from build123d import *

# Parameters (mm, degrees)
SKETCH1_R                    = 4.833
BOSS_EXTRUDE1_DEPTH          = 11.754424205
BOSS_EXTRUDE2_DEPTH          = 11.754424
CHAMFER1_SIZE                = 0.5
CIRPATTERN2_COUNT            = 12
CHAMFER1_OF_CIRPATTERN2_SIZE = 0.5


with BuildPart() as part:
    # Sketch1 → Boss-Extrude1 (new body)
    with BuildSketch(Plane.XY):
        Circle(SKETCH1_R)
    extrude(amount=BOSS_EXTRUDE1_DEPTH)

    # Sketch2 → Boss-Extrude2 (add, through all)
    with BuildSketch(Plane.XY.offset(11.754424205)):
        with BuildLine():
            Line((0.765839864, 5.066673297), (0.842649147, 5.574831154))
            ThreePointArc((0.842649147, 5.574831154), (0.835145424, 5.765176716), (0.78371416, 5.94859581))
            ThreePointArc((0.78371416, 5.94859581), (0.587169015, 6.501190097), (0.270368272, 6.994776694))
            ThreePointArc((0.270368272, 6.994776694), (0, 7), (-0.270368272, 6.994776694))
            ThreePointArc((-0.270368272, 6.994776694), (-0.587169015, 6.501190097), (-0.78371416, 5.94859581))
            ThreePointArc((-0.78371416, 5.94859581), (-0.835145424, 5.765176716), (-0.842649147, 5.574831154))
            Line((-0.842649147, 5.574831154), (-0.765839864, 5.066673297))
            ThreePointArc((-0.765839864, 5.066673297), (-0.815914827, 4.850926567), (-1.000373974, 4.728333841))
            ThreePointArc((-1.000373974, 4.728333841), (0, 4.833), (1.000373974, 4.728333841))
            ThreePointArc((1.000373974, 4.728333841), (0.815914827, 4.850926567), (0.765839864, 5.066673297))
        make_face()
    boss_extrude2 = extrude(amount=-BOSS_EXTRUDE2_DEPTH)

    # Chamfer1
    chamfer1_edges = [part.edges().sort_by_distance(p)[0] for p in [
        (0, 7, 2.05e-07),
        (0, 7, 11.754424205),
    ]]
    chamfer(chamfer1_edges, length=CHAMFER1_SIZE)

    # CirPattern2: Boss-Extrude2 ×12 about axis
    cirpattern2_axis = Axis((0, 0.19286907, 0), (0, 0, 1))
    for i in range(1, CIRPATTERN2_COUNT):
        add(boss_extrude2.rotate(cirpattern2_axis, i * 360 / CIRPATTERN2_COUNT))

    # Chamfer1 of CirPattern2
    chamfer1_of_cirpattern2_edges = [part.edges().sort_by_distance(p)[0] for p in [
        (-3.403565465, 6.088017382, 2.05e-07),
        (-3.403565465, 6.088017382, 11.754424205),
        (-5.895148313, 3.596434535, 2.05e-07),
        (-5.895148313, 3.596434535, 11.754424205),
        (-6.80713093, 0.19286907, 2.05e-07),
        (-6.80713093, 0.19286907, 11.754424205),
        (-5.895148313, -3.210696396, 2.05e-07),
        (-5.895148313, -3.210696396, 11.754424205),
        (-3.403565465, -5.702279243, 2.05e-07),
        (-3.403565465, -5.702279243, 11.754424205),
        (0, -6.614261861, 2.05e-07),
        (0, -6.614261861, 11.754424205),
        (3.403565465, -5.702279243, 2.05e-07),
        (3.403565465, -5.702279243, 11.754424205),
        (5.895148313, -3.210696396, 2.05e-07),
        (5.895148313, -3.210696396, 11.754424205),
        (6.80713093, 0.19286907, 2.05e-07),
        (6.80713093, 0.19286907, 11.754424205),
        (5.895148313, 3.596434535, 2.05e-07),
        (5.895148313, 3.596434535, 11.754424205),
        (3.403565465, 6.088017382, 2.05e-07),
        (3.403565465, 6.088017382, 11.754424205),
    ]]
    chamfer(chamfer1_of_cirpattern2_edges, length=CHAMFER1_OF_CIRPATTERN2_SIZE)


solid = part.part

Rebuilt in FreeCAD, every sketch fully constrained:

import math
import FreeCAD as App
import Part
import Sketcher


def edges_at(feature, points):
    """Names of the edges that pass closest to the given points."""
    edges = feature.Shape.Edges
    near = lambda p: min(range(len(edges)), key=lambda i: edges[i].distToShape(Part.Vertex(*p))[0])
    return sorted({f"Edge{near(p) + 1}" for p in points})

doc = App.newDocument("Part")
body = doc.addObject("PartDesign::Body", "Body")

sketch1 = body.newObject("Sketcher::SketchObject", "Sketch")
sketch1.AttachmentSupport = (doc.getObject("XY_Plane"), [""])
sketch1.MapMode = "FlatFace"
sketch1.addGeometry(Part.Circle(App.Vector(0, 0, 0), App.Vector(0, 0, 1), 4.8), False)
sketch1.addConstraint(Sketcher.Constraint("Coincident", 0, 3, -1, 1))
sketch1.addConstraint(Sketcher.Constraint("Diameter", 0, 9.666))
pad1 = body.newObject("PartDesign::Pad", "Pad")
pad1.Profile = sketch1
pad1.Length = 11.754424

sketch2 = body.newObject("Sketcher::SketchObject", "Sketch001")
sketch2.AttachmentSupport = (doc.getObject("XY_Plane"), [""])
sketch2.MapMode = "FlatFace"
sketch2.AttachmentOffset = App.Placement(App.Vector(0, 0, 11.754424), App.Rotation())
sketch2.addGeometry(Part.LineSegment(App.Vector(0.77, 5.07, 0), App.Vector(0.84, 5.57, 0)), False)
sketch2.addGeometry(Part.ArcOfCircle(Part.Circle(App.Vector(0.03, 5.64, 0), App.Vector(0, 0, 1), 0.82), math.radians(-4), math.radians(22)), False)
sketch2.addGeometry(Part.ArcOfCircle(Part.Circle(App.Vector(-1.72, 5.37, 0), App.Vector(0, 0, 1), 2.57), math.radians(13), math.radians(39)), False)
sketch2.addGeometry(Part.ArcOfCircle(Part.Circle(App.Vector(0, 0, 0), App.Vector(0, 0, 1), 7), math.radians(87.79), math.radians(92.21)), False)
sketch2.addGeometry(Part.ArcOfCircle(Part.Circle(App.Vector(1.72, 5.37, 0), App.Vector(0, 0, 1), 2.57), math.radians(141), math.radians(167)), False)
sketch2.addGeometry(Part.ArcOfCircle(Part.Circle(App.Vector(-0.03, 5.64, 0), App.Vector(0, 0, 1), 0.82), math.radians(158), math.radians(184)), False)
sketch2.addGeometry(Part.LineSegment(App.Vector(-0.84, 5.57, 0), App.Vector(-0.77, 5.07, 0)), False)
sketch2.addGeometry(Part.ArcOfCircle(Part.Circle(App.Vector(-1.06, 5.02, 0), App.Vector(0, 0, 1), 0.3), math.radians(-78), math.radians(9)), False)
sketch2.addGeometry(Part.ArcOfCircle(Part.Circle(App.Vector(0, 0, 0), App.Vector(0, 0, 1), 4.83), math.radians(78), math.radians(102)), False)
sketch2.addGeometry(Part.ArcOfCircle(Part.Circle(App.Vector(1.06, 5.02, 0), App.Vector(0, 0, 1), 0.3), math.radians(171), math.radians(258)), False)
sketch2.addConstraint(Sketcher.Constraint("Coincident", 0, 2, 1, 1))
sketch2.addConstraint(Sketcher.Constraint("Coincident", 1, 2, 2, 1))
sketch2.addConstraint(Sketcher.Constraint("Coincident", 2, 2, 3, 1))
sketch2.addConstraint(Sketcher.Constraint("Coincident", 3, 2, 4, 1))
sketch2.addConstraint(Sketcher.Constraint("Coincident", 4, 2, 5, 1))
sketch2.addConstraint(Sketcher.Constraint("Coincident", 5, 2, 6, 1))
sketch2.addConstraint(Sketcher.Constraint("Tangent", 6, 2, 7, 2))
sketch2.addConstraint(Sketcher.Constraint("Tangent", 7, 1, 8, 2))
sketch2.addConstraint(Sketcher.Constraint("Tangent", 8, 1, 9, 2))
sketch2.addConstraint(Sketcher.Constraint("Tangent", 9, 1, 0, 1))
sketch2.addConstraint(Sketcher.Constraint("Coincident", 3, 3, -1, 1))
sketch2.addConstraint(Sketcher.Constraint("Coincident", 8, 3, -1, 1))
sketch2.addConstraint(Sketcher.Constraint("Equal", 2, 4))
sketch2.addConstraint(Sketcher.Constraint("Equal", 1, 5))
sketch2.addConstraint(Sketcher.Constraint("Equal", 7, 9))
sketch2.addConstraint(Sketcher.Constraint("Symmetric", 2, 3, 4, 3, -2))
sketch2.addConstraint(Sketcher.Constraint("Symmetric", 1, 3, 5, 3, -2))
sketch2.addConstraint(Sketcher.Constraint("Symmetric", 6, 2, 9, 1, -2))
sketch2.addConstraint(Sketcher.Constraint("Radius", 3, 7.0))
sketch2.addConstraint(Sketcher.Constraint("Radius", 7, 0.3))
sketch2.addConstraint(Sketcher.Constraint("Radius", 1, 0.816))
sketch2.addConstraint(Sketcher.Constraint("Radius", 2, 2.568))
sketch2.addConstraint(Sketcher.Constraint("Radius", 8, 4.833))
sketch2.addConstraint(Sketcher.Constraint("Distance", 0, 0.51393))
sketch2.addConstraint(Sketcher.Constraint("DistanceY", -1, 1, 1, 3, 5.638081))
sketch2.addConstraint(Sketcher.Constraint("DistanceX", 7, 3, -1, 1, 1.06247))
sketch2.addConstraint(Sketcher.Constraint("DistanceX", -1, 1, 0, 2, 0.842649))
sketch2.addConstraint(Sketcher.Constraint("DistanceX", -1, 1, 2, 2, 0.270368))
sketch2.addConstraint(Sketcher.Constraint("DistanceX", 2, 3, 1, 3, 1.747349))
pad2 = body.newObject("PartDesign::Pad", "Pad001")
pad2.Profile = sketch2
pad2.Length = 11.754424
pad2.Reversed = True
doc.recompute()

chamfer = body.newObject("PartDesign::Chamfer", "Chamfer")
chamfer.Base = (pad2, edges_at(pad2, [(0, 7, 0), (0, 7, 11.754)]))
chamfer.Size = 0.5
doc.recompute()

datumline = body.newObject("PartDesign::Line", "DatumLine")
datumline.Placement = App.Placement(App.Vector(0, 0.192869, 0), App.Rotation(App.Vector(0, 0, 1), App.Vector(0, 0, 1)))
polarpattern = body.newObject("PartDesign::PolarPattern", "PolarPattern")
polarpattern.Originals = [pad2]
polarpattern.Axis = (datumline, [""])
polarpattern.Angle = 360
polarpattern.Occurrences = 12
body.Tip = polarpattern
doc.recompute()

chamfer2 = body.newObject("PartDesign::Chamfer", "Chamfer001")
chamfer2.Base = (polarpattern, edges_at(polarpattern, [
    (-3.404, 6.088, 0),
    (-3.404, 6.088, 11.754),
    (-5.895, 3.596, 0),
    (-5.895, 3.596, 11.754),
    (-6.807, 0.193, 0),
    (-6.807, 0.193, 11.754),
    (-5.895, -3.211, 0),
    (-5.895, -3.211, 11.754),
    (-3.404, -5.702, 0),
    (-3.404, -5.702, 11.754),
    (0, -6.614, 0),
    (0, -6.614, 11.754),
    (3.404, -5.702, 0),
    (3.404, -5.702, 11.754),
    (5.895, -3.211, 0),
    (5.895, -3.211, 11.754),
    (6.807, 0.193, 0),
    (6.807, 0.193, 11.754),
    (5.895, 3.596, 0),
    (5.895, 3.596, 11.754),
    (3.404, 6.088, 0),
    (3.404, 6.088, 11.754),
]))
chamfer2.Size = 0.5

doc.recompute()
